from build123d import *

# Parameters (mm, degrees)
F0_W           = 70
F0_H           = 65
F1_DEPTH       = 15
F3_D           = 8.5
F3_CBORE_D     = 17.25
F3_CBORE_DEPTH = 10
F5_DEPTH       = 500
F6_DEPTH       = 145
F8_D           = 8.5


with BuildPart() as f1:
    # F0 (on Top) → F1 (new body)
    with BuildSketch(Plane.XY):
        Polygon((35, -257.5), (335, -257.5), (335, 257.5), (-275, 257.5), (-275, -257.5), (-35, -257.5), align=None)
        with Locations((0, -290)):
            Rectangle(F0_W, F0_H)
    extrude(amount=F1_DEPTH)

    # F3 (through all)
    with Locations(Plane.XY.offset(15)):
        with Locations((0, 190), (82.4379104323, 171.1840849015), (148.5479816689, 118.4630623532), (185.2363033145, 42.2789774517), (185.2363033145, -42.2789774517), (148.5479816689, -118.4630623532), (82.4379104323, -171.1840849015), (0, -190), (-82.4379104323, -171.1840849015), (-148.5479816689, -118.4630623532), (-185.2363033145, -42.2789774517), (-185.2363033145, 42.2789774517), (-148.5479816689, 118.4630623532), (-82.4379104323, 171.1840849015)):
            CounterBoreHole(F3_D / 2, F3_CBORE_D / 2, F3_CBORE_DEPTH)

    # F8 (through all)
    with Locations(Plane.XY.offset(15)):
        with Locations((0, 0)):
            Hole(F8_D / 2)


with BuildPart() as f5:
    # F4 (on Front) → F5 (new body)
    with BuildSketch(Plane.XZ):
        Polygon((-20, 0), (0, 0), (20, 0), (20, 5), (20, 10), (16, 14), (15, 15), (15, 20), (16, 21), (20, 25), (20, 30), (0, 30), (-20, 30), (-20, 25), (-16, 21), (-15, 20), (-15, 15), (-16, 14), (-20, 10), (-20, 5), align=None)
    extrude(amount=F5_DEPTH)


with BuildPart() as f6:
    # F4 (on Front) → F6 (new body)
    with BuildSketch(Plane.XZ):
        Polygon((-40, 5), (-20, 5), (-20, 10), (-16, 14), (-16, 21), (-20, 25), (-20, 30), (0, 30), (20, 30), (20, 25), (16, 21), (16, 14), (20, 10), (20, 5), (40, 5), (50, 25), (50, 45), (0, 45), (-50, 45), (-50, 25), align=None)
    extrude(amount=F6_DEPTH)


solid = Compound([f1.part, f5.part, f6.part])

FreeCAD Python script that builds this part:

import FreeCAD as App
import Part
import Sketcher

V = App.Vector


def add_polygon(sketch, points):
    """Adds a closed chain of lines whose ends are joined by coincident constraints."""
    first, n = sketch.GeometryCount, len(points)
    for a, b in zip(points, points[1:] + points[:1]):
        sketch.addGeometry(Part.LineSegment(App.Vector(*a, 0), App.Vector(*b, 0)), False)
    for i in range(n):
        sketch.addConstraint(Sketcher.Constraint("Coincident", first + i, 2, first + (i + 1) % n, 1))

doc = App.newDocument("Part")
body = doc.addObject("PartDesign::Body", "Body")

sketch1 = body.newObject("Sketcher::SketchObject", "Sketch")
sketch1.AttachmentSupport = (doc.getObject("XY_Plane"), [""])
sketch1.MapMode = "FlatFace"
add_polygon(sketch1, [(335, -257.5), (335, 257.5), (-275, 257.5), (-275, -257.5), (-35, -257.5), (-35, -322.5), (35, -322.5), (35, -257.5)])
sketch1.addConstraint([
    Sketcher.Constraint("Vertical", 0),
    Sketcher.Constraint("Horizontal", 1),
    Sketcher.Constraint("Vertical", 2),
    Sketcher.Constraint("Horizontal", 3),
    Sketcher.Constraint("Vertical", 4),
    Sketcher.Constraint("Horizontal", 5),
    Sketcher.Constraint("Vertical", 6),
    Sketcher.Constraint("Horizontal", 7),
    Sketcher.Constraint("Symmetric", 3, 2, 6, 2, -2),
    Sketcher.Constraint("DistanceX", 1, 2, 1, 1, 610.0),
    Sketcher.Constraint("DistanceX", 3, 1, 3, 2, 240.0),
    Sketcher.Constraint("DistanceX", 5, 1, 5, 2, 70.0),
    Sketcher.Constraint("DistanceY", 0, 1, 0, 2, 515.0),
    Sketcher.Constraint("DistanceY", 4, 2, 4, 1, 65.0),
    Sketcher.Constraint("DistanceY", -1, 1, 0, 2, 257.5),
])
pad1 = body.newObject("PartDesign::Pad", "Pad")
pad1.Profile = sketch1
pad1.Length = 15

sketch2 = body.newObject("Sketcher::SketchObject", "Sketch001")
sketch2.AttachmentSupport = (doc.getObject("XY_Plane"), [""])
sketch2.MapMode = "FlatFace"
sketch2.AttachmentOffset = App.Placement(V(0, 0, 15), App.Rotation())
sketch2.addGeometry([
    Part.Circle(V(0, 190, 0), V(0, 0, 1), 4.25),
    Part.Circle(V(82.43791, 171.184085, 0), V(0, 0, 1), 4.25),
    Part.Circle(V(148.547982, 118.463062, 0), V(0, 0, 1), 4.25),
    Part.Circle(V(185.236303, 42.278977, 0), V(0, 0, 1), 4.25),
    Part.Circle(V(185.236303, -42.278977, 0), V(0, 0, 1), 4.25),
    Part.Circle(V(148.547982, -118.463062, 0), V(0, 0, 1), 4.25),
    Part.Circle(V(82.43791, -171.184085, 0), V(0, 0, 1), 4.25),
    Part.Circle(V(0, -190, 0), V(0, 0, 1), 4.25),
    Part.Circle(V(-82.43791, -171.184085, 0), V(0, 0, 1), 4.25),
    Part.Circle(V(-148.547982, -118.463062, 0), V(0, 0, 1), 4.25),
    Part.Circle(V(-185.236303, -42.278977, 0), V(0, 0, 1), 4.25),
    Part.Circle(V(-185.236303, 42.278977, 0), V(0, 0, 1), 4.25),
    Part.Circle(V(-148.547982, 118.463062, 0), V(0, 0, 1), 4.25),
    Part.Circle(V(-82.43791, 171.184085, 0), V(0, 0, 1), 4.25),
], False)
sketch2.addConstraint([
    Sketcher.Constraint("Equal", 0, 1),
    Sketcher.Constraint("Equal", 1, 2),
    Sketcher.Constraint("Equal", 2, 3),
    Sketcher.Constraint("Equal", 3, 4),
    Sketcher.Constraint("Equal", 4, 5),
    Sketcher.Constraint("Equal", 5, 6),
    Sketcher.Constraint("Equal", 6, 7),
    Sketcher.Constraint("Equal", 7, 8),
    Sketcher.Constraint("Equal", 8, 9),
    Sketcher.Constraint("Equal", 9, 10),
    Sketcher.Constraint("Equal", 10, 11),
    Sketcher.Constraint("Equal", 11, 12),
    Sketcher.Constraint("Equal", 12, 13),
    Sketcher.Constraint("Symmetric", 0, 3, 7, 3, -1, 1),
    Sketcher.Constraint("Symmetric", 1, 3, 8, 3, -1, 1),
    Sketcher.Constraint("Symmetric", 2, 3, 9, 3, -1, 1),
    Sketcher.Constraint("Symmetric", 3, 3, 10, 3, -1, 1),
    Sketcher.Constraint("Symmetric", 4, 3, 11, 3, -1, 1),
    Sketcher.Constraint("Symmetric", 5, 3, 12, 3, -1, 1),
    Sketcher.Constraint("Symmetric", 6, 3, 13, 3, -1, 1),
    Sketcher.Constraint("Symmetric", 6, 3, 8, 3, -2),
    Sketcher.Constraint("Symmetric", 5, 3, 9, 3, -2),
    Sketcher.Constraint("Symmetric", 4, 3, 10, 3, -2),
    Sketcher.Constraint("PointOnObject", 0, 3, -2),
    Sketcher.Constraint("Diameter", 0, 8.5),
    Sketcher.Constraint("DistanceY", -1, 1, 0, 3, 190.0),
    Sketcher.Constraint("DistanceX", -1, 1, 1, 3, 82.43791),
    Sketcher.Constraint("DistanceX", -1, 1, 2, 3, 148.547982),
    Sketcher.Constraint("DistanceX", 2, 3, 3, 3, 36.688322),
    Sketcher.Constraint("DistanceY", 4, 3, 2, 3, 160.74204),
    Sketcher.Constraint("DistanceY", 6, 3, 1, 3, 342.36817),
    Sketcher.Constraint("DistanceY", -1, 1, 2, 3, 118.463062),
])
doc.recompute()
hole = body.newObject("PartDesign::Hole", "Hole")
hole.Profile = sketch2
hole.ThreadType = "None"
hole.Diameter = 8.5
hole.DepthType = "ThroughAll"
hole.HoleCutType = "Counterbore"
hole.HoleCutDiameter = 17.25
hole.HoleCutDepth = 10

sketch3 = body.newObject("Sketcher::SketchObject", "Sketch002")
sketch3.AttachmentSupport = (doc.getObject("XY_Plane"), [""])
sketch3.MapMode = "FlatFace"
sketch3.AttachmentOffset = App.Placement(V(0, 0, 15), App.Rotation())
sketch3.addGeometry(Part.Circle(V(0, 0, 0), V(0, 0, 1), 4.25), False)
sketch3.addConstraint([
    Sketcher.Constraint("Coincident", 0, 3, -1, 1),
    Sketcher.Constraint("Diameter", 0, 8.5),
])
doc.recompute()
hole2 = body.newObject("PartDesign::Hole", "Hole001")
hole2.Profile = sketch3
hole2.ThreadType = "None"
hole2.Diameter = 8.5
hole2.DepthType = "ThroughAll"
body2 = doc.addObject("PartDesign::Body", "Body001")

sketch4 = body2.newObject("Sketcher::SketchObject", "Sketch003")
sketch4.AttachmentSupport = (doc.getObject("XZ_Plane001"), [""])
sketch4.MapMode = "FlatFace"
add_polygon(sketch4, [(-20, 0), (20, 0), (20, 10), (15, 15), (15, 20), (20, 25), (20, 30), (-20, 30), (-20, 25), (-15, 20), (-15, 15), (-20, 10)])
sketch4.addConstraint([
    Sketcher.Constraint("Horizontal", 0),
    Sketcher.Constraint("Vertical", 1),
    Sketcher.Constraint("Vertical", 3),
    Sketcher.Constraint("Vertical", 5),
    Sketcher.Constraint("Horizontal", 6),
    Sketcher.Constraint("Vertical", 7),
    Sketcher.Constraint("Vertical", 9),
    Sketcher.Constraint("Vertical", 11),
    Sketcher.Constraint("Symmetric", 0, 2, 11, 2, -1, 1),
    Sketcher.Constraint("Symmetric", 4, 2, 7, 2, -2),
    Sketcher.Constraint("Symmetric", 3, 2, 8, 2, -2),
    Sketcher.Constraint("Perpendicular", 2, 4),
    Sketcher.Constraint("Perpendicular", 4, 8),
    Sketcher.Constraint("Perpendicular", 8, 10),
    Sketcher.Constraint("Horizontal", 2, 2, 9, 2),
    Sketcher.Constraint("Vertical", 1, 2, 4, 2),
    Sketcher.Constraint("Equal", 3, 5),
    Sketcher.Constraint("DistanceX", 0, 1, 0, 2, 40.0),
    Sketcher.Constraint("DistanceY", 1, 1, 1, 2, 10.0),
    Sketcher.Constraint("DistanceY", 3, 1, 3, 2, 5.0),
    Sketcher.Constraint("DistanceX", -1, 1, 2, 2, 15.0),
])
pad2 = body2.newObject("PartDesign::Pad", "Pad001")
pad2.Profile = sketch4
pad2.Length = 500
body3 = doc.addObject("PartDesign::Body", "Body002")

sketch5 = body3.newObject("Sketcher::SketchObject", "Sketch004")
sketch5.AttachmentSupport = (doc.getObject("XZ_Plane002"), [""])
sketch5.MapMode = "FlatFace"
add_polygon(sketch5, [(-40, 5), (-20, 5), (-20, 10), (-16, 14), (-16, 21), (-20, 25), (-20, 30), (20, 30), (20, 25), (16, 21), (16, 14), (20, 10), (20, 5), (40, 5), (50, 25), (50, 45), (-50, 45), (-50, 25)])
sketch5.addConstraint([
    Sketcher.Constraint("Horizontal", 0),
    Sketcher.Constraint("Vertical", 1),
    Sketcher.Constraint("Vertical", 3),
    Sketcher.Constraint("Vertical", 5),
    Sketcher.Constraint("Horizontal", 6),
    Sketcher.Constraint("Vertical", 7),
    Sketcher.Constraint("Vertical", 9),
    Sketcher.Constraint("Vertical", 11),
    Sketcher.Constraint("Horizontal", 12),
    Sketcher.Constraint("Vertical", 14),
    Sketcher.Constraint("Horizontal", 15),
    Sketcher.Constraint("Vertical", 16),
    Sketcher.Constraint("Symmetric", 4, 2, 7, 2, -2),
    Sketcher.Constraint("Symmetric", 3, 2, 8, 2, -2),
    Sketcher.Constraint("Symmetric", 1, 2, 10, 2, -2),
    Sketcher.Constraint("Symmetric", 13, 2, 16, 2, -2),
    Sketcher.Constraint("Symmetric", 12, 2, 17, 2, -2),
    Sketcher.Constraint("Perpendicular", 2, 4),
    Sketcher.Constraint("Perpendicular", 4, 8),
    Sketcher.Constraint("Perpendicular", 8, 10),
    Sketcher.Constraint("Horizontal", 7, 2, 13, 2),
    Sketcher.Constraint("Vertical", 1, 2, 4, 2),
    Sketcher.Constraint("Equal", 1, 5),
    Sketcher.Constraint("Equal", 12, 14),
    Sketcher.Constraint("DistanceX", 0, 1, 0, 2, 20.0),
    Sketcher.Constraint("DistanceX", 6, 1, 6, 2, 40.0),
    Sketcher.Constraint("DistanceX", 15, 2, 15, 1, 100.0),
    Sketcher.Constraint("DistanceY", 1, 1, 1, 2, 5.0),
    Sketcher.Constraint("DistanceY", 3, 1, 3, 2, 7.0),
    Sketcher.Constraint("DistanceY", -1, 1, 0, 2, 5.0),
    Sketcher.Constraint("DistanceX", 2, 2, -1, 1, 16.0),
])
pad3 = body3.newObject("PartDesign::Pad", "Pad002")
pad3.Profile = sketch5
pad3.Length = 145

doc.recompute()
